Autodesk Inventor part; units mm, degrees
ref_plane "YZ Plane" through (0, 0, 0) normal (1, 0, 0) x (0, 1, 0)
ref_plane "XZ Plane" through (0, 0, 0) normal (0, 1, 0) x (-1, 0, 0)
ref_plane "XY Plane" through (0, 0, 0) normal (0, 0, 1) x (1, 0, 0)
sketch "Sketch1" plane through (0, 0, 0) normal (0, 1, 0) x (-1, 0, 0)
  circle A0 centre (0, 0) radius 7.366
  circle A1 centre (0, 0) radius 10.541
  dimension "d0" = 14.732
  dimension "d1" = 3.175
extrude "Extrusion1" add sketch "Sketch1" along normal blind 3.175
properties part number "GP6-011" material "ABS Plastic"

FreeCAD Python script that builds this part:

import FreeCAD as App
import Part
import Sketcher

V = App.Vector
Q = App.Units.Quantity

doc = App.newDocument("Part")
params = doc.addObject("Spreadsheet::Sheet", "Params")
for row, (alias, value) in enumerate([
    ("sketch1_diameter", "0.58 in"),
    ("sketch1_diameter2", "0.83 in"),
    ("pad1_length", "0.125 in"),
], start=1):
    params.set(f"A{row}", alias)
    params.set(f"B{row}", "=" + value)
    params.setAlias(f"B{row}", alias)

body = doc.addObject("PartDesign::Body", "Body")

sketch1 = doc.addObject("Sketcher::SketchObject", "Sketch")
body.addObject(sketch1)
sketch1.AttachmentSupport = (doc.XZ_Plane, [""])
sketch1.MapMode = "FlatFace"
sketch1.addGeometry([
    Part.Circle(V(0, 0, 0), V(0, 0, 1), 11),
    Part.Circle(V(0, 0, 0), V(0, 0, 1), 7),
], False)
sketch1.addConstraint([
    Sketcher.Constraint("Coincident", 0, 3, -1, 1),
    Sketcher.Constraint("Coincident", 1, 3, -1, 1),
    Sketcher.Constraint("Diameter", 1, Q("0.58 in")),
    Sketcher.Constraint("Diameter", 0, Q("0.83 in")),
])
sketch1.setExpression("Constraints[2]", "Params.sketch1_diameter")
sketch1.setExpression("Constraints[3]", "Params.sketch1_diameter2")
pad1 = doc.addObject("PartDesign::Pad", "Pad")
body.addObject(pad1)
pad1.Profile = sketch1
pad1.setExpression("Length", "Params.pad1_length")
pad1.Reversed = True

doc.recompute()
